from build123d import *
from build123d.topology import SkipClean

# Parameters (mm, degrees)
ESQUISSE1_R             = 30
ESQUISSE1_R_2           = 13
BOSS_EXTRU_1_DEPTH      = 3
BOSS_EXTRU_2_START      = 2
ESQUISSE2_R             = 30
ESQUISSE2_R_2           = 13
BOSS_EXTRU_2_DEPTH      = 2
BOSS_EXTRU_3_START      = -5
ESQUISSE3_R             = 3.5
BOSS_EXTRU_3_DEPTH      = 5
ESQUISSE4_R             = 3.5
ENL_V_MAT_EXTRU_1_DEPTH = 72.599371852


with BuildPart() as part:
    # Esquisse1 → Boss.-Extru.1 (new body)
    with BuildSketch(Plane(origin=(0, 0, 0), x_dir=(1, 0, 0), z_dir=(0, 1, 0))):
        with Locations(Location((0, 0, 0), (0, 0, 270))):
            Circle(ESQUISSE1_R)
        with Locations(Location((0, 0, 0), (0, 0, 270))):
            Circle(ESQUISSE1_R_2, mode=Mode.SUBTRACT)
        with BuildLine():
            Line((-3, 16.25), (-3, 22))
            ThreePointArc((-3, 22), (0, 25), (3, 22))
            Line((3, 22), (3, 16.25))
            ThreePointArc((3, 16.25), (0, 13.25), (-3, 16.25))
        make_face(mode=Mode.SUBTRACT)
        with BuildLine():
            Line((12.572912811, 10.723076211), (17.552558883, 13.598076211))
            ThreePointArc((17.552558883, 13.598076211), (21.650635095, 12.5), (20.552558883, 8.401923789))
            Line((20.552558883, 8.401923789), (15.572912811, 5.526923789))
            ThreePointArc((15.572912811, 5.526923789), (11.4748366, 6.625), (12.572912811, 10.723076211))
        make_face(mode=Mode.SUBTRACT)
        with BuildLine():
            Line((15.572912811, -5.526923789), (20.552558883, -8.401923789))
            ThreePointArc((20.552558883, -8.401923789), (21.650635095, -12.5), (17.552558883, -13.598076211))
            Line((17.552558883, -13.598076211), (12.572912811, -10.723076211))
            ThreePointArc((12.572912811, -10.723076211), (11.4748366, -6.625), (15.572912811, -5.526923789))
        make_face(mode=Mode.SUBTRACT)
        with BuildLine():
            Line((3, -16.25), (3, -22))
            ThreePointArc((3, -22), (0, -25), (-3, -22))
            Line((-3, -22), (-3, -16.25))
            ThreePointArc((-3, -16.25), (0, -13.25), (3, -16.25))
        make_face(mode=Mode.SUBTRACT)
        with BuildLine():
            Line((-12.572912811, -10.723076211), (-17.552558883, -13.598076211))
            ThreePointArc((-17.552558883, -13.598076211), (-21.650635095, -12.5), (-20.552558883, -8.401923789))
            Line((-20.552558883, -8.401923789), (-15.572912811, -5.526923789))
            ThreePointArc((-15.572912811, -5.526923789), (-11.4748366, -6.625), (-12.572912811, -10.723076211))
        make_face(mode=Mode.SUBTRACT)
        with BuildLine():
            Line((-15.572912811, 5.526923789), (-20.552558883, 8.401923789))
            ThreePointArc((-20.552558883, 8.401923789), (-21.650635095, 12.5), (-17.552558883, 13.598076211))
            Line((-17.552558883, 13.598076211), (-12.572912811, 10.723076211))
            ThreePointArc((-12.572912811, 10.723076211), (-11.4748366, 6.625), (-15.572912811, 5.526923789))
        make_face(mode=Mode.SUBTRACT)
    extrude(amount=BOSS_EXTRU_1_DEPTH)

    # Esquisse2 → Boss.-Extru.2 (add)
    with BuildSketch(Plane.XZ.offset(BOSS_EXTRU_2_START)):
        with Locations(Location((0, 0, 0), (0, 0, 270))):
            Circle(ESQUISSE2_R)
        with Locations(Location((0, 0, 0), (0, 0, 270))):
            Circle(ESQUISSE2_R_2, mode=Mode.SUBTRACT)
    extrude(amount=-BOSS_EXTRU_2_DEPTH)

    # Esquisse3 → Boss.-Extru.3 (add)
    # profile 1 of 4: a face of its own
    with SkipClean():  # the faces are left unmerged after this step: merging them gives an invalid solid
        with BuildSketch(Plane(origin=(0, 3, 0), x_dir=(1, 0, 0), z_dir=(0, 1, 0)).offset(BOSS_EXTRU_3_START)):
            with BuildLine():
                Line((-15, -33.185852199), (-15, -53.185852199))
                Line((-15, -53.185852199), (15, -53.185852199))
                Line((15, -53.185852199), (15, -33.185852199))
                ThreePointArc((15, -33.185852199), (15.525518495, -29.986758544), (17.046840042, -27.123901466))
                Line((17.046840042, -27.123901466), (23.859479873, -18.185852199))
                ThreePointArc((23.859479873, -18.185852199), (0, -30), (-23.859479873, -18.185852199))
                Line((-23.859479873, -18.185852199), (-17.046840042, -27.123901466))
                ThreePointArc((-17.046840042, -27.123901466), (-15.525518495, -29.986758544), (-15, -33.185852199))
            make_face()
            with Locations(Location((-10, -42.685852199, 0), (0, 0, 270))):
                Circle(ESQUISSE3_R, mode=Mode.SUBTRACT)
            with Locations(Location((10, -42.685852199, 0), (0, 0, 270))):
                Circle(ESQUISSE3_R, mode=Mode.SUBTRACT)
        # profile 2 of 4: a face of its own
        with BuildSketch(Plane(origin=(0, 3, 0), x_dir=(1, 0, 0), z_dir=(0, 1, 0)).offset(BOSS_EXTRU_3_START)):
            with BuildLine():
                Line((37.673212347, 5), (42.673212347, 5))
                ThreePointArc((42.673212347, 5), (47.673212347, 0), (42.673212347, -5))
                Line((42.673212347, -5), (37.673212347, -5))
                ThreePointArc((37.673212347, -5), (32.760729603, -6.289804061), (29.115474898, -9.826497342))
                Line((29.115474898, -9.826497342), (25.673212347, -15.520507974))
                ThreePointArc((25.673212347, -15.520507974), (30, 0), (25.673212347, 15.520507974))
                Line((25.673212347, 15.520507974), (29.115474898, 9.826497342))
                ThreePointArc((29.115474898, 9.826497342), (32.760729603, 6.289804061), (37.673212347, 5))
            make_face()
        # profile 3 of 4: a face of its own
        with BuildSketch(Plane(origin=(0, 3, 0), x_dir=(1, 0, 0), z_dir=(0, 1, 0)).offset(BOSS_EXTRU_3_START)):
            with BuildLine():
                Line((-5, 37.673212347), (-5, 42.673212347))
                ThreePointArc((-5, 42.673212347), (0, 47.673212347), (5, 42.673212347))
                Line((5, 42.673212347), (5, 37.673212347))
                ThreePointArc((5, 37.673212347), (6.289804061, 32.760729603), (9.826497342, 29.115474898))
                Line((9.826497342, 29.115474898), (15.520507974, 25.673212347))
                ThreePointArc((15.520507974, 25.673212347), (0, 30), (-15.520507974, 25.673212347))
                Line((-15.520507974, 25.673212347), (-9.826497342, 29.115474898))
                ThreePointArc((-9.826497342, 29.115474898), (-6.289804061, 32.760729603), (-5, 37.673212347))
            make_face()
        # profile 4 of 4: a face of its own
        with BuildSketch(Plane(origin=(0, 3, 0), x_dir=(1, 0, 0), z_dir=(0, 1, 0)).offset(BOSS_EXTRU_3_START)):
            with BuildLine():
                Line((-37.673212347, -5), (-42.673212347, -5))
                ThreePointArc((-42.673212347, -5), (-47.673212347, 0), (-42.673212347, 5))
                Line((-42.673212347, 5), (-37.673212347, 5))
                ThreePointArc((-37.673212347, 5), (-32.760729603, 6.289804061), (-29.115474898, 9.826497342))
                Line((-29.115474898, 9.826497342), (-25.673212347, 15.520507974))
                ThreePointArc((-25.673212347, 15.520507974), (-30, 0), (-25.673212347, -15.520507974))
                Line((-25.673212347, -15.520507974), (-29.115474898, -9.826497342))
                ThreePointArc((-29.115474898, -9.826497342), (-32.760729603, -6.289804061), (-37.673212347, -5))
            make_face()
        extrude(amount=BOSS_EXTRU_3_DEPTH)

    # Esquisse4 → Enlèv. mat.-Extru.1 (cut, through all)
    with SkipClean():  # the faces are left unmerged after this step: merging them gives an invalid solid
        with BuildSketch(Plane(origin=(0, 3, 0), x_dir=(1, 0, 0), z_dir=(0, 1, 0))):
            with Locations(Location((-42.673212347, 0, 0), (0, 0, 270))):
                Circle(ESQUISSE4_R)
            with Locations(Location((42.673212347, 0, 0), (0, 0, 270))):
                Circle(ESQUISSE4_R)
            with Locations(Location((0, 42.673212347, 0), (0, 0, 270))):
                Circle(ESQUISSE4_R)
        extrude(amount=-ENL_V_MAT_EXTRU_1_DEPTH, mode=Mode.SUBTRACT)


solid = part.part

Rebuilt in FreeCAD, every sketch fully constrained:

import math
import FreeCAD as App
import Part
import Sketcher
Q = App.Units.Quantity

doc = App.newDocument("Part")
body = doc.addObject("PartDesign::Body", "Body")

# Sketch on XZ plane
sketch1 = body.newObject("Sketcher::SketchObject", "Sketch")
sketch1.AttachmentSupport = (doc.getObject("XZ_Plane"), [""])
sketch1.MapMode = "FlatFace"
sketch1.addGeometry(Part.Circle(App.Vector(0, 0, 0), App.Vector(0, 0, 1), 30), False)
sketch1.addGeometry(Part.ArcOfCircle(Part.Circle(App.Vector(-14.072913, -8.125, 0), App.Vector(0, 0, 1), 3), math.radians(-60), math.radians(120)), False)
sketch1.addGeometry(Part.LineSegment(App.Vector(-15.572913, -5.526924, 0), App.Vector(-20.552559, -8.401924, 0)), False)
sketch1.addGeometry(Part.ArcOfCircle(Part.Circle(App.Vector(-19.052559, -11, 0), App.Vector(0, 0, 1), 3), math.radians(120), math.radians(300)), False)
sketch1.addGeometry(Part.LineSegment(App.Vector(-17.552559, -13.598076, 0), App.Vector(-12.572913, -10.723076, 0)), False)
sketch1.addGeometry(Part.ArcOfCircle(Part.Circle(App.Vector(0, -16.25, 0), App.Vector(0, 0, 1), 3), math.radians(0), math.radians(180)), False)
sketch1.addGeometry(Part.LineSegment(App.Vector(-3, -16.25, 0), App.Vector(-3, -22, 0)), False)
sketch1.addGeometry(Part.ArcOfCircle(Part.Circle(App.Vector(0, -22, 0), App.Vector(0, 0, 1), 3), math.radians(180), math.radians(360)), False)
sketch1.addGeometry(Part.LineSegment(App.Vector(3, -22, 0), App.Vector(3, -16.25, 0)), False)
sketch1.addGeometry(Part.ArcOfCircle(Part.Circle(App.Vector(-14.072913, 8.125, 0), App.Vector(0, 0, 1), 3), math.radians(-120), math.radians(60)), False)
sketch1.addGeometry(Part.LineSegment(App.Vector(-12.572913, 10.723076, 0), App.Vector(-17.552559, 13.598076, 0)), False)
sketch1.addGeometry(Part.ArcOfCircle(Part.Circle(App.Vector(-19.052559, 11, 0), App.Vector(0, 0, 1), 3), math.radians(60), math.radians(240)), False)
sketch1.addGeometry(Part.LineSegment(App.Vector(-20.552559, 8.401924, 0), App.Vector(-15.572913, 5.526924, 0)), False)
sketch1.addGeometry(Part.ArcOfCircle(Part.Circle(App.Vector(14.072913, -8.125, 0), App.Vector(0, 0, 1), 3), math.radians(60), math.radians(240)), False)
sketch1.addGeometry(Part.LineSegment(App.Vector(12.572913, -10.723076, 0), App.Vector(17.552559, -13.598076, 0)), False)
sketch1.addGeometry(Part.ArcOfCircle(Part.Circle(App.Vector(19.052559, -11, 0), App.Vector(0, 0, 1), 3), math.radians(-120), math.radians(60)), False)
sketch1.addGeometry(Part.LineSegment(App.Vector(20.552559, -8.401924, 0), App.Vector(15.572913, -5.526924, 0)), False)
sketch1.addGeometry(Part.Circle(App.Vector(0, 0, 0), App.Vector(0, 0, 1), 13), False)
sketch1.addGeometry(Part.ArcOfCircle(Part.Circle(App.Vector(0, 16.25, 0), App.Vector(0, 0, 1), 3), math.radians(180), math.radians(360)), False)
sketch1.addGeometry(Part.LineSegment(App.Vector(3, 16.25, 0), App.Vector(3, 22, 0)), False)
sketch1.addGeometry(Part.ArcOfCircle(Part.Circle(App.Vector(0, 22, 0), App.Vector(0, 0, 1), 3), math.radians(0), math.radians(180)), False)
sketch1.addGeometry(Part.LineSegment(App.Vector(-3, 22, 0), App.Vector(-3, 16.25, 0)), False)
sketch1.addGeometry(Part.ArcOfCircle(Part.Circle(App.Vector(14.072913, 8.125, 0), App.Vector(0, 0, 1), 3), math.radians(120), math.radians(300)), False)
sketch1.addGeometry(Part.LineSegment(App.Vector(15.572913, 5.526924, 0), App.Vector(20.552559, 8.401924, 0)), False)
sketch1.addGeometry(Part.ArcOfCircle(Part.Circle(App.Vector(19.052559, 11, 0), App.Vector(0, 0, 1), 3), math.radians(-60), math.radians(120)), False)
sketch1.addGeometry(Part.LineSegment(App.Vector(17.552559, 13.598076, 0), App.Vector(12.572913, 10.723076, 0)), False)
sketch1.addConstraint(Sketcher.Constraint("Tangent", 1, 2, 2, 1))
sketch1.addConstraint(Sketcher.Constraint("Tangent", 2, 2, 3, 1))
sketch1.addConstraint(Sketcher.Constraint("Tangent", 3, 2, 4, 1))
sketch1.addConstraint(Sketcher.Constraint("Tangent", 4, 2, 1, 1))
sketch1.addConstraint(Sketcher.Constraint("Tangent", 5, 2, 6, 1))
sketch1.addConstraint(Sketcher.Constraint("Tangent", 6, 2, 7, 1))
sketch1.addConstraint(Sketcher.Constraint("Tangent", 7, 2, 8, 1))
sketch1.addConstraint(Sketcher.Constraint("Tangent", 8, 2, 5, 1))
sketch1.addConstraint(Sketcher.Constraint("Tangent", 9, 2, 10, 1))
sketch1.addConstraint(Sketcher.Constraint("Tangent", 10, 2, 11, 1))
sketch1.addConstraint(Sketcher.Constraint("Tangent", 11, 2, 12, 1))
sketch1.addConstraint(Sketcher.Constraint("Tangent", 12, 2, 9, 1))
sketch1.addConstraint(Sketcher.Constraint("Tangent", 13, 2, 14, 1))
sketch1.addConstraint(Sketcher.Constraint("Tangent", 14, 2, 15, 1))
sketch1.addConstraint(Sketcher.Constraint("Tangent", 15, 2, 16, 1))
sketch1.addConstraint(Sketcher.Constraint("Tangent", 16, 2, 13, 1))
sketch1.addConstraint(Sketcher.Constraint("Tangent", 18, 2, 19, 1))
sketch1.addConstraint(Sketcher.Constraint("Tangent", 19, 2, 20, 1))
sketch1.addConstraint(Sketcher.Constraint("Tangent", 20, 2, 21, 1))
sketch1.addConstraint(Sketcher.Constraint("Tangent", 21, 2, 18, 1))
sketch1.addConstraint(Sketcher.Constraint("Tangent", 22, 2, 23, 1))
sketch1.addConstraint(Sketcher.Constraint("Tangent", 23, 2, 24, 1))
sketch1.addConstraint(Sketcher.Constraint("Tangent", 24, 2, 25, 1))
sketch1.addConstraint(Sketcher.Constraint("Tangent", 25, 2, 22, 1))
sketch1.addConstraint(Sketcher.Constraint("Vertical", 6))
sketch1.addConstraint(Sketcher.Constraint("Vertical", 8))
sketch1.addConstraint(Sketcher.Constraint("Vertical", 19))
sketch1.addConstraint(Sketcher.Constraint("Vertical", 21))
sketch1.addConstraint(Sketcher.Constraint("Coincident", 0, 3, -1, 1))
sketch1.addConstraint(Sketcher.Constraint("Coincident", 17, 3, -1, 1))
sketch1.addConstraint(Sketcher.Constraint("Equal", 1, 3))
sketch1.addConstraint(Sketcher.Constraint("Equal", 3, 5))
sketch1.addConstraint(Sketcher.Constraint("Equal", 7, 9))
sketch1.addConstraint(Sketcher.Constraint("Equal", 9, 11))
sketch1.addConstraint(Sketcher.Constraint("Equal", 11, 13))
sketch1.addConstraint(Sketcher.Constraint("Equal", 13, 15))
sketch1.addConstraint(Sketcher.Constraint("Equal", 15, 18))
sketch1.addConstraint(Sketcher.Constraint("Equal", 20, 22))
sketch1.addConstraint(Sketcher.Constraint("Equal", 22, 24))
sketch1.addConstraint(Sketcher.Constraint("Symmetric", 9, 3, 13, 3, -1, 1))
sketch1.addConstraint(Sketcher.Constraint("Symmetric", 11, 3, 15, 3, -1, 1))
sketch1.addConstraint(Sketcher.Constraint("Symmetric", 5, 3, 18, 3, -1, 1))
sketch1.addConstraint(Sketcher.Constraint("Symmetric", 1, 3, 22, 3, -1, 1))
sketch1.addConstraint(Sketcher.Constraint("Symmetric", 3, 3, 24, 3, -1, 1))
sketch1.addConstraint(Sketcher.Constraint("Symmetric", 1, 3, 13, 3, -2))
sketch1.addConstraint(Sketcher.Constraint("Symmetric", 3, 3, 15, 3, -2))
sketch1.addConstraint(Sketcher.Constraint("Symmetric", 7, 3, 20, 3, -1))
sketch1.addConstraint(Sketcher.Constraint("Diameter", 0, 60.0))
sketch1.addConstraint(Sketcher.Constraint("Diameter", 17, 26.0))
sketch1.addConstraint(Sketcher.Constraint("Radius", 1, 3.0))
sketch1.addConstraint(Sketcher.Constraint("Angle", 2, Q("-150 deg")))
sketch1.addConstraint(Sketcher.Constraint("DistanceY", 3, 3, -1, 1, 11.0))
sketch1.addConstraint(Sketcher.Constraint("DistanceY", 7, 3, -1, 1, 22.0))
sketch1.addConstraint(Sketcher.Constraint("DistanceY", 6, 2, 6, 1, 5.75))
sketch1.addConstraint(Sketcher.Constraint("Distance", 2, 5.75))
sketch1.addConstraint(Sketcher.Constraint("DistanceX", 3, 3, -1, 1, 19.052559))
pad1 = body.newObject("PartDesign::Pad", "Pad")
pad1.Profile = sketch1
pad1.Length = 3
pad1.Reversed = True

# Sketch on XZ plane
sketch2 = body.newObject("Sketcher::SketchObject", "Sketch001")
sketch2.AttachmentSupport = (doc.getObject("XZ_Plane"), [""])
sketch2.MapMode = "FlatFace"
sketch2.AttachmentOffset = App.Placement(App.Vector(0, 0, 2), App.Rotation())
sketch2.addGeometry(Part.Circle(App.Vector(0, 0, 0), App.Vector(0, 0, 1), 30), False)
sketch2.addGeometry(Part.Circle(App.Vector(0, 0, 0), App.Vector(0, 0, 1), 13), False)
sketch2.addConstraint(Sketcher.Constraint("Coincident", 0, 3, -1, 1))
sketch2.addConstraint(Sketcher.Constraint("Coincident", 1, 3, -1, 1))
sketch2.addConstraint(Sketcher.Constraint("Diameter", 0, 60.0))
sketch2.addConstraint(Sketcher.Constraint("Diameter", 1, 26.0))
pad2 = body.newObject("PartDesign::Pad", "Pad001")
pad2.Profile = sketch2
pad2.Length = 2
pad2.Reversed = True

# Sketch on XZ plane
sketch3 = body.newObject("Sketcher::SketchObject", "Sketch002")
sketch3.AttachmentSupport = (doc.getObject("XZ_Plane"), [""])
sketch3.MapMode = "FlatFace"
sketch3.AttachmentOffset = App.Placement(App.Vector(0, 0, 2), App.Rotation())
sketch3.addGeometry(Part.LineSegment(App.Vector(-15, 33.185852, 0), App.Vector(-15, 53.185852, 0)), False)
sketch3.addGeometry(Part.LineSegment(App.Vector(-15, 53.185852, 0), App.Vector(15, 53.185852, 0)), False)
sketch3.addGeometry(Part.LineSegment(App.Vector(15, 53.185852, 0), App.Vector(15, 33.185852, 0)), False)
sketch3.addGeometry(Part.ArcOfCircle(Part.Circle(App.Vector(25, 33.185852, 0), App.Vector(0, 0, 1), 10), math.radians(180), math.radians(217.314888)), False)
sketch3.addGeometry(Part.LineSegment(App.Vector(17.04684, 27.123901, 0), App.Vector(23.85948, 18.185852, 0)), False)
sketch3.addGeometry(Part.ArcOfCircle(Part.Circle(App.Vector(0, 0, 0), App.Vector(0, 0, 1), 30), math.radians(37.314888), math.radians(142.685112)), False)
sketch3.addGeometry(Part.LineSegment(App.Vector(-23.85948, 18.185852, 0), App.Vector(-17.04684, 27.123901, 0)), False)
sketch3.addGeometry(Part.ArcOfCircle(Part.Circle(App.Vector(-25, 33.185852, 0), App.Vector(0, 0, 1), 10), math.radians(-37.314888), math.radians(0)), False)
sketch3.addGeometry(Part.Circle(App.Vector(-10, 42.685852, 0), App.Vector(0, 0, 1), 3.5), False)
sketch3.addGeometry(Part.Circle(App.Vector(10, 42.685852, 0), App.Vector(0, 0, 1), 3.5), False)
sketch3.addGeometry(Part.LineSegment(App.Vector(42.673212, -5, 0), App.Vector(37.673212, -5, 0)), False)
sketch3.addGeometry(Part.ArcOfCircle(Part.Circle(App.Vector(37.673212, -15, 0), App.Vector(0, 0, 1), 10), math.radians(90), math.radians(148.84532)), False)
sketch3.addGeometry(Part.LineSegment(App.Vector(29.115475, -9.826497, 0), App.Vector(25.673212, -15.520508, 0)), False)
sketch3.addGeometry(Part.ArcOfCircle(Part.Circle(App.Vector(0, 0, 0), App.Vector(0, 0, 1), 30), math.radians(-31.15468), math.radians(31.15468)), False)
sketch3.addGeometry(Part.LineSegment(App.Vector(25.673212, 15.520508, 0), App.Vector(29.115475, 9.826497, 0)), False)
sketch3.addGeometry(Part.ArcOfCircle(Part.Circle(App.Vector(37.673212, 15, 0), App.Vector(0, 0, 1), 10), math.radians(-148.84532), math.radians(-90)), False)
sketch3.addGeometry(Part.LineSegment(App.Vector(37.673212, 5, 0), App.Vector(42.673212, 5, 0)), False)
sketch3.addGeometry(Part.ArcOfCircle(Part.Circle(App.Vector(42.673212, 0, 0), App.Vector(0, 0, 1), 5), math.radians(-90), math.radians(90)), False)
sketch3.addGeometry(Part.LineSegment(App.Vector(-5, -42.673212, 0), App.Vector(-5, -37.673212, 0)), False)
sketch3.addGeometry(Part.ArcOfCircle(Part.Circle(App.Vector(-15, -37.673212, 0), App.Vector(0, 0, 1), 10), math.radians(0), math.radians(58.84532)), False)
sketch3.addGeometry(Part.LineSegment(App.Vector(-9.826497, -29.115475, 0), App.Vector(-15.520508, -25.673212, 0)), False)
sketch3.addGeometry(Part.ArcOfCircle(Part.Circle(App.Vector(0, 0, 0), App.Vector(0, 0, 1), 30), math.radians(-121.15468), math.radians(-58.84532)), False)
sketch3.addGeometry(Part.LineSegment(App.Vector(15.520508, -25.673212, 0), App.Vector(9.826497, -29.115475, 0)), False)
sketch3.addGeometry(Part.ArcOfCircle(Part.Circle(App.Vector(15, -37.673212, 0), App.Vector(0, 0, 1), 10), math.radians(121.15468), math.radians(180)), False)
sketch3.addGeometry(Part.LineSegment(App.Vector(5, -37.673212, 0), App.Vector(5, -42.673212, 0)), False)
sketch3.addGeometry(Part.ArcOfCircle(Part.Circle(App.Vector(0, -42.673212, 0), App.Vector(0, 0, 1), 5), math.radians(180), math.radians(360)), False)
sketch3.addGeometry(Part.LineSegment(App.Vector(-42.673212, 5, 0), App.Vector(-37.673212, 5, 0)), False)
sketch3.addGeometry(Part.ArcOfCircle(Part.Circle(App.Vector(-37.673212, 15, 0), App.Vector(0, 0, 1), 10), math.radians(-90), math.radians(-31.15468)), False)
sketch3.addGeometry(Part.LineSegment(App.Vector(-29.115475, 9.826497, 0), App.Vector(-25.673212, 15.520508, 0)), False)
sketch3.addGeometry(Part.ArcOfCircle(Part.Circle(App.Vector(0, 0, 0), App.Vector(0, 0, 1), 30), math.radians(148.84532), math.radians(211.15468)), False)
sketch3.addGeometry(Part.LineSegment(App.Vector(-25.673212, -15.520508, 0), App.Vector(-29.115475, -9.826497, 0)), False)
sketch3.addGeometry(Part.ArcOfCircle(Part.Circle(App.Vector(-37.673212, -15, 0), App.Vector(0, 0, 1), 10), math.radians(31.15468), math.radians(90)), False)
sketch3.addGeometry(Part.LineSegment(App.Vector(-37.673212, -5, 0), App.Vector(-42.673212, -5, 0)), False)
sketch3.addGeometry(Part.ArcOfCircle(Part.Circle(App.Vector(-42.673212, 0, 0), App.Vector(0, 0, 1), 5), math.radians(90), math.radians(270)), False)
sketch3.addConstraint(Sketcher.Constraint("Coincident", 0, 2, 1, 1))
sketch3.addConstraint(Sketcher.Constraint("Coincident", 1, 2, 2, 1))
sketch3.addConstraint(Sketcher.Constraint("Tangent", 2, 2, 3, 1))
sketch3.addConstraint(Sketcher.Constraint("Tangent", 3, 2, 4, 1))
sketch3.addConstraint(Sketcher.Constraint("Tangent", 4, 2, 5, 1))
sketch3.addConstraint(Sketcher.Constraint("Tangent", 5, 2, 6, 1))
sketch3.addConstraint(Sketcher.Constraint("Tangent", 6, 2, 7, 1))
sketch3.addConstraint(Sketcher.Constraint("Tangent", 7, 2, 0, 1))
sketch3.addConstraint(Sketcher.Constraint("Tangent", 10, 2, 11, 1))
sketch3.addConstraint(Sketcher.Constraint("Tangent", 11, 2, 12, 1))
sketch3.addConstraint(Sketcher.Constraint("Tangent", 12, 2, 13, 1))
sketch3.addConstraint(Sketcher.Constraint("Tangent", 13, 2, 14, 1))
sketch3.addConstraint(Sketcher.Constraint("Tangent", 14, 2, 15, 1))
sketch3.addConstraint(Sketcher.Constraint("Tangent", 15, 2, 16, 1))
sketch3.addConstraint(Sketcher.Constraint("Tangent", 16, 2, 17, 2))
sketch3.addConstraint(Sketcher.Constraint("Tangent", 17, 1, 10, 1))
sketch3.addConstraint(Sketcher.Constraint("Tangent", 18, 2, 19, 1))
sketch3.addConstraint(Sketcher.Constraint("Tangent", 19, 2, 20, 1))
sketch3.addConstraint(Sketcher.Constraint("Tangent", 20, 2, 21, 1))
sketch3.addConstraint(Sketcher.Constraint("Tangent", 21, 2, 22, 1))
sketch3.addConstraint(Sketcher.Constraint("Tangent", 22, 2, 23, 1))
sketch3.addConstraint(Sketcher.Constraint("Tangent", 23, 2, 24, 1))
sketch3.addConstraint(Sketcher.Constraint("Tangent", 24, 2, 25, 2))
sketch3.addConstraint(Sketcher.Constraint("Tangent", 25, 1, 18, 1))
sketch3.addConstraint(Sketcher.Constraint("Tangent", 26, 2, 27, 1))
sketch3.addConstraint(Sketcher.Constraint("Tangent", 27, 2, 28, 1))
sketch3.addConstraint(Sketcher.Constraint("Tangent", 28, 2, 29, 1))
sketch3.addConstraint(Sketcher.Constraint("Tangent", 29, 2, 30, 1))
sketch3.addConstraint(Sketcher.Constraint("Tangent", 30, 2, 31, 1))
sketch3.addConstraint(Sketcher.Constraint("Tangent", 31, 2, 32, 1))
sketch3.addConstraint(Sketcher.Constraint("Tangent", 32, 2, 33, 2))
sketch3.addConstraint(Sketcher.Constraint("Tangent", 33, 1, 26, 1))
sketch3.addConstraint(Sketcher.Constraint("Vertical", 0))
sketch3.addConstraint(Sketcher.Constraint("Horizontal", 1))
sketch3.addConstraint(Sketcher.Constraint("Vertical", 2))
sketch3.addConstraint(Sketcher.Constraint("Horizontal", 10))
sketch3.addConstraint(Sketcher.Constraint("Horizontal", 16))
sketch3.addConstraint(Sketcher.Constraint("Vertical", 18))
sketch3.addConstraint(Sketcher.Constraint("Vertical", 24))
sketch3.addConstraint(Sketcher.Constraint("Horizontal", 26))
sketch3.addConstraint(Sketcher.Constraint("Horizontal", 32))
sketch3.addConstraint(Sketcher.Constraint("Coincident", 5, 3, -1, 1))
sketch3.addConstraint(Sketcher.Constraint("Coincident", 13, 3, -1, 1))
sketch3.addConstraint(Sketcher.Constraint("Coincident", 21, 3, -1, 1))
sketch3.addConstraint(Sketcher.Constraint("Coincident", 29, 3, -1, 1))
sketch3.addConstraint(Sketcher.Constraint("Equal", 3, 7))
sketch3.addConstraint(Sketcher.Constraint("Equal", 8, 9))
sketch3.addConstraint(Sketcher.Constraint("Equal", 7, 11))
sketch3.addConstraint(Sketcher.Constraint("Equal", 5, 13))
sketch3.addConstraint(Sketcher.Constraint("Equal", 11, 15))
sketch3.addConstraint(Sketcher.Constraint("Equal", 15, 19))
sketch3.addConstraint(Sketcher.Constraint("Equal", 13, 21))
sketch3.addConstraint(Sketcher.Constraint("Equal", 19, 23))
sketch3.addConstraint(Sketcher.Constraint("Equal", 17, 25))
sketch3.addConstraint(Sketcher.Constraint("Equal", 23, 27))
sketch3.addConstraint(Sketcher.Constraint("Equal", 21, 29))
sketch3.addConstraint(Sketcher.Constraint("Equal", 27, 31))
sketch3.addConstraint(Sketcher.Constraint("Equal", 25, 33))
sketch3.addConstraint(Sketcher.Constraint("Symmetric", 11, 3, 27, 3, -1, 1))
sketch3.addConstraint(Sketcher.Constraint("Symmetric", 3, 3, 7, 3, -2))
sketch3.addConstraint(Sketcher.Constraint("Symmetric", 8, 3, 9, 3, -2))
sketch3.addConstraint(Sketcher.Constraint("Symmetric", 19, 3, 23, 3, -2))
sketch3.addConstraint(Sketcher.Constraint("Symmetric", 15, 3, 27, 3, -2))
sketch3.addConstraint(Sketcher.Constraint("Perpendicular", 12, 20))
sketch3.addConstraint(Sketcher.Constraint("Perpendicular", 22, 30))
sketch3.addConstraint(Sketcher.Constraint("Vertical", 19, 3, 0, 2))
sketch3.addConstraint(Sketcher.Constraint("Equal", 16, 26))
sketch3.addConstraint(Sketcher.Constraint("Equal", 32, 18))
sketch3.addConstraint(Sketcher.Constraint("Diameter", 8, 7.0))
sketch3.addConstraint(Sketcher.Constraint("Radius", 3, 10.0))
sketch3.addConstraint(Sketcher.Constraint("Radius", 5, 30.0))
sketch3.addConstraint(Sketcher.Constraint("Radius", 17, 5.0))
sketch3.addConstraint(Sketcher.Constraint("DistanceX", 10, 2, 10, 1, 5.0))
sketch3.addConstraint(Sketcher.Constraint("DistanceY", 0, 1, 0, 2, 20.0))
sketch3.addConstraint(Sketcher.Constraint("DistanceX", 8, 3, -1, 1, 10.0))
sketch3.addConstraint(Sketcher.Constraint("DistanceY", 4, 2, 3, 3, 15.0))
sketch3.addConstraint(Sketcher.Constraint("DistanceX", 12, 2, 11, 3, 12.0))
sketch3.addConstraint(Sketcher.Constraint("DistanceY", 7, 3, 8, 3, 9.5))
pad3 = body.newObject("PartDesign::Pad", "Pad002")
pad3.Profile = sketch3
pad3.Length = 5
pad3.Reversed = True

# Sketch on XZ plane
sketch4 = body.newObject("Sketcher::SketchObject", "Sketch003")
sketch4.AttachmentSupport = (doc.getObject("XZ_Plane"), [""])
sketch4.MapMode = "FlatFace"
sketch4.AttachmentOffset = App.Placement(App.Vector(0, 0, -3), App.Rotation())
sketch4.addGeometry(Part.Circle(App.Vector(-42.673212, 0, 0), App.Vector(0, 0, 1), 3.5), False)
sketch4.addGeometry(Part.Circle(App.Vector(42.673212, 0, 0), App.Vector(0, 0, 1), 3.5), False)
sketch4.addGeometry(Part.Circle(App.Vector(0, -42.673212, 0), App.Vector(0, 0, 1), 3.5), False)
sketch4.addConstraint(Sketcher.Constraint("Equal", 0, 1))
sketch4.addConstraint(Sketcher.Constraint("Equal", 1, 2))
sketch4.addConstraint(Sketcher.Constraint("Symmetric", 0, 3, 1, 3, -1, 1))
sketch4.addConstraint(Sketcher.Constraint("PointOnObject", 0, 3, -1))
sketch4.addConstraint(Sketcher.Constraint("PointOnObject", 2, 3, -2))
sketch4.addConstraint(Sketcher.Constraint("Diameter", 0, 7.0))
sketch4.addConstraint(Sketcher.Constraint("DistanceX", 0, 3, -1, 1, 42.673212))
sketch4.addConstraint(Sketcher.Constraint("DistanceY", 2, 3, -1, 1, 42.673212))
pocket1 = body.newObject("PartDesign::Pocket", "Pocket")
pocket1.Profile = sketch4
pocket1.Type = "ThroughAll"
pocket1.Reversed = True

doc.recompute()
